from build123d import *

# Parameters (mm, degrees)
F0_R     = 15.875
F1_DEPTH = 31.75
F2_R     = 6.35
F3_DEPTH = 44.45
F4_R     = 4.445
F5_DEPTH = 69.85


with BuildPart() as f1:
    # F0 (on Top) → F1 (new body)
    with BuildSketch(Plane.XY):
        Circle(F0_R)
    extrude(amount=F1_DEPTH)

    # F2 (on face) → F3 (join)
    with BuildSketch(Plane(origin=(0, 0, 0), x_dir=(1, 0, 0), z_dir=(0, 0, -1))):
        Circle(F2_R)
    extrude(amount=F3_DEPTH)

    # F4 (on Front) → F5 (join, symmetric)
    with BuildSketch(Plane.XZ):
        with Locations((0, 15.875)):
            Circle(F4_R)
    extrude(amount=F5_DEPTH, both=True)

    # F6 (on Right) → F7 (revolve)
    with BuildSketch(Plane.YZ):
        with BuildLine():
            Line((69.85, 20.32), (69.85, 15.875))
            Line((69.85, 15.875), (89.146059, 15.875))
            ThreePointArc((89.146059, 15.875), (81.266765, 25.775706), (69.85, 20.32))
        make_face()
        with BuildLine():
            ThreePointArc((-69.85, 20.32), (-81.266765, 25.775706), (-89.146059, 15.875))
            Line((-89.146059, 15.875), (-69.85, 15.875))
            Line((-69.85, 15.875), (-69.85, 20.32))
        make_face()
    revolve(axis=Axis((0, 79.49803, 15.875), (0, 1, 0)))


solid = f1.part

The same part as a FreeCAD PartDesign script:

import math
import FreeCAD as App
import Part
import Sketcher

V = App.Vector
Q = App.Units.Quantity

doc = App.newDocument("Part")
body = doc.addObject("PartDesign::Body", "Body")

sketch1 = body.newObject("Sketcher::SketchObject", "Sketch")
sketch1.AttachmentSupport = (doc.getObject("XY_Plane"), [""])
sketch1.MapMode = "FlatFace"
sketch1.addGeometry(Part.Circle(V(0, 0, 0), V(0, 0, 1), 16), False)
sketch1.addConstraint(Sketcher.Constraint("Coincident", 0, 3, -1, 1))
sketch1.addConstraint(Sketcher.Constraint("Diameter", 0, Q("1.25 in")))
pad1 = body.newObject("PartDesign::Pad", "Pad")
pad1.Profile = sketch1
pad1.Length = Q("1.25 in")

sketch2 = body.newObject("Sketcher::SketchObject", "Sketch001")
sketch2.AttachmentSupport = (doc.getObject("XY_Plane"), [""])
sketch2.MapMode = "FlatFace"
sketch2.addGeometry(Part.Circle(V(0, 0, 0), V(0, 0, 1), 6), False)
sketch2.addConstraint(Sketcher.Constraint("Coincident", 0, 3, -1, 1))
sketch2.addConstraint(Sketcher.Constraint("Diameter", 0, Q("0.5 in")))
pad2 = body.newObject("PartDesign::Pad", "Pad001")
pad2.Profile = sketch2
pad2.Length = Q("1.75 in")
pad2.Reversed = True

sketch3 = body.newObject("Sketcher::SketchObject", "Sketch002")
sketch3.AttachmentSupport = (doc.getObject("XZ_Plane"), [""])
sketch3.MapMode = "FlatFace"
sketch3.addGeometry(Part.Circle(V(0, 15.9, 0), V(0, 0, 1), 4.4), False)
sketch3.addConstraint(Sketcher.Constraint("PointOnObject", 0, 3, -2))
sketch3.addConstraint(Sketcher.Constraint("Diameter", 0, Q("0.35 in")))
sketch3.addConstraint(Sketcher.Constraint("DistanceY", -1, 1, 0, 3, Q("0.625 in")))
pad3 = body.newObject("PartDesign::Pad", "Pad002")
pad3.Profile = sketch3
pad3.Length = Q("5.5 in")
pad3.Midplane = True

sketch4 = body.newObject("Sketcher::SketchObject", "Sketch003")
sketch4.AttachmentSupport = (doc.getObject("YZ_Plane"), [""])
sketch4.MapMode = "FlatFace"
sketch4.addGeometry(Part.LineSegment(V(69.8, 20.3, 0), V(69.8, 15.9, 0)), False)
sketch4.addGeometry(Part.LineSegment(V(69.8, 15.9, 0), V(89.1, 15.9, 0)), False)
sketch4.addGeometry(Part.ArcOfCircle(Part.Circle(V(79, 15.9, 0), V(0, 0, 1), 10.2), math.radians(0), math.radians(154)), False)
sketch4.addGeometry(Part.ArcOfCircle(Part.Circle(V(-79, 15.9, 0), V(0, 0, 1), 10.2), math.radians(26), math.radians(180)), False)
sketch4.addGeometry(Part.LineSegment(V(-89.1, 15.9, 0), V(-69.8, 15.9, 0)), False)
sketch4.addGeometry(Part.LineSegment(V(-69.8, 15.9, 0), V(-69.8, 20.3, 0)), False)
sketch4.addGeometry(Part.LineSegment(V(-89.1, 15.9, 0), V(89.1, 15.9, 0)), True)
sketch4.addConstraint(Sketcher.Constraint("Coincident", 0, 2, 1, 1))
sketch4.addConstraint(Sketcher.Constraint("Coincident", 1, 2, 2, 1))
sketch4.addConstraint(Sketcher.Constraint("Coincident", 2, 2, 0, 1))
sketch4.addConstraint(Sketcher.Constraint("Coincident", 3, 2, 4, 1))
sketch4.addConstraint(Sketcher.Constraint("Coincident", 4, 2, 5, 1))
sketch4.addConstraint(Sketcher.Constraint("Coincident", 5, 2, 3, 1))
sketch4.addConstraint(Sketcher.Constraint("Vertical", 0))
sketch4.addConstraint(Sketcher.Constraint("Horizontal", 1))
sketch4.addConstraint(Sketcher.Constraint("Horizontal", 4))
sketch4.addConstraint(Sketcher.Constraint("Vertical", 5))
sketch4.addConstraint(Sketcher.Constraint("Horizontal", 6))
sketch4.addConstraint(Sketcher.Constraint("Coincident", 6, 1, 3, 2))
sketch4.addConstraint(Sketcher.Constraint("Coincident", 6, 2, 1, 2))
sketch4.addConstraint(Sketcher.Constraint("Equal", 2, 3))
sketch4.addConstraint(Sketcher.Constraint("Symmetric", 2, 3, 3, 3, -2))
sketch4.addConstraint(Sketcher.Constraint("Horizontal", 3, 3, 0, 2))
sketch4.addConstraint(Sketcher.Constraint("Horizontal", 2, 2, 5, 2))
sketch4.addConstraint(Sketcher.Constraint("Radius", 2, Q("0.4 in")))
sketch4.addConstraint(Sketcher.Constraint("DistanceY", -1, 1, 2, 2, Q("0.8 in")))
sketch4.addConstraint(Sketcher.Constraint("DistanceX", 4, 2, 0, 2, Q("5.5 in")))
sketch4.addConstraint(Sketcher.Constraint("DistanceY", 0, 2, 0, 1, Q("0.175 in")))
revolution = body.newObject("PartDesign::Revolution", "Revolution")
revolution.Profile = sketch4
revolution.ReferenceAxis = (sketch4, ["Axis0"])
revolution.Angle = 360

doc.recompute()
